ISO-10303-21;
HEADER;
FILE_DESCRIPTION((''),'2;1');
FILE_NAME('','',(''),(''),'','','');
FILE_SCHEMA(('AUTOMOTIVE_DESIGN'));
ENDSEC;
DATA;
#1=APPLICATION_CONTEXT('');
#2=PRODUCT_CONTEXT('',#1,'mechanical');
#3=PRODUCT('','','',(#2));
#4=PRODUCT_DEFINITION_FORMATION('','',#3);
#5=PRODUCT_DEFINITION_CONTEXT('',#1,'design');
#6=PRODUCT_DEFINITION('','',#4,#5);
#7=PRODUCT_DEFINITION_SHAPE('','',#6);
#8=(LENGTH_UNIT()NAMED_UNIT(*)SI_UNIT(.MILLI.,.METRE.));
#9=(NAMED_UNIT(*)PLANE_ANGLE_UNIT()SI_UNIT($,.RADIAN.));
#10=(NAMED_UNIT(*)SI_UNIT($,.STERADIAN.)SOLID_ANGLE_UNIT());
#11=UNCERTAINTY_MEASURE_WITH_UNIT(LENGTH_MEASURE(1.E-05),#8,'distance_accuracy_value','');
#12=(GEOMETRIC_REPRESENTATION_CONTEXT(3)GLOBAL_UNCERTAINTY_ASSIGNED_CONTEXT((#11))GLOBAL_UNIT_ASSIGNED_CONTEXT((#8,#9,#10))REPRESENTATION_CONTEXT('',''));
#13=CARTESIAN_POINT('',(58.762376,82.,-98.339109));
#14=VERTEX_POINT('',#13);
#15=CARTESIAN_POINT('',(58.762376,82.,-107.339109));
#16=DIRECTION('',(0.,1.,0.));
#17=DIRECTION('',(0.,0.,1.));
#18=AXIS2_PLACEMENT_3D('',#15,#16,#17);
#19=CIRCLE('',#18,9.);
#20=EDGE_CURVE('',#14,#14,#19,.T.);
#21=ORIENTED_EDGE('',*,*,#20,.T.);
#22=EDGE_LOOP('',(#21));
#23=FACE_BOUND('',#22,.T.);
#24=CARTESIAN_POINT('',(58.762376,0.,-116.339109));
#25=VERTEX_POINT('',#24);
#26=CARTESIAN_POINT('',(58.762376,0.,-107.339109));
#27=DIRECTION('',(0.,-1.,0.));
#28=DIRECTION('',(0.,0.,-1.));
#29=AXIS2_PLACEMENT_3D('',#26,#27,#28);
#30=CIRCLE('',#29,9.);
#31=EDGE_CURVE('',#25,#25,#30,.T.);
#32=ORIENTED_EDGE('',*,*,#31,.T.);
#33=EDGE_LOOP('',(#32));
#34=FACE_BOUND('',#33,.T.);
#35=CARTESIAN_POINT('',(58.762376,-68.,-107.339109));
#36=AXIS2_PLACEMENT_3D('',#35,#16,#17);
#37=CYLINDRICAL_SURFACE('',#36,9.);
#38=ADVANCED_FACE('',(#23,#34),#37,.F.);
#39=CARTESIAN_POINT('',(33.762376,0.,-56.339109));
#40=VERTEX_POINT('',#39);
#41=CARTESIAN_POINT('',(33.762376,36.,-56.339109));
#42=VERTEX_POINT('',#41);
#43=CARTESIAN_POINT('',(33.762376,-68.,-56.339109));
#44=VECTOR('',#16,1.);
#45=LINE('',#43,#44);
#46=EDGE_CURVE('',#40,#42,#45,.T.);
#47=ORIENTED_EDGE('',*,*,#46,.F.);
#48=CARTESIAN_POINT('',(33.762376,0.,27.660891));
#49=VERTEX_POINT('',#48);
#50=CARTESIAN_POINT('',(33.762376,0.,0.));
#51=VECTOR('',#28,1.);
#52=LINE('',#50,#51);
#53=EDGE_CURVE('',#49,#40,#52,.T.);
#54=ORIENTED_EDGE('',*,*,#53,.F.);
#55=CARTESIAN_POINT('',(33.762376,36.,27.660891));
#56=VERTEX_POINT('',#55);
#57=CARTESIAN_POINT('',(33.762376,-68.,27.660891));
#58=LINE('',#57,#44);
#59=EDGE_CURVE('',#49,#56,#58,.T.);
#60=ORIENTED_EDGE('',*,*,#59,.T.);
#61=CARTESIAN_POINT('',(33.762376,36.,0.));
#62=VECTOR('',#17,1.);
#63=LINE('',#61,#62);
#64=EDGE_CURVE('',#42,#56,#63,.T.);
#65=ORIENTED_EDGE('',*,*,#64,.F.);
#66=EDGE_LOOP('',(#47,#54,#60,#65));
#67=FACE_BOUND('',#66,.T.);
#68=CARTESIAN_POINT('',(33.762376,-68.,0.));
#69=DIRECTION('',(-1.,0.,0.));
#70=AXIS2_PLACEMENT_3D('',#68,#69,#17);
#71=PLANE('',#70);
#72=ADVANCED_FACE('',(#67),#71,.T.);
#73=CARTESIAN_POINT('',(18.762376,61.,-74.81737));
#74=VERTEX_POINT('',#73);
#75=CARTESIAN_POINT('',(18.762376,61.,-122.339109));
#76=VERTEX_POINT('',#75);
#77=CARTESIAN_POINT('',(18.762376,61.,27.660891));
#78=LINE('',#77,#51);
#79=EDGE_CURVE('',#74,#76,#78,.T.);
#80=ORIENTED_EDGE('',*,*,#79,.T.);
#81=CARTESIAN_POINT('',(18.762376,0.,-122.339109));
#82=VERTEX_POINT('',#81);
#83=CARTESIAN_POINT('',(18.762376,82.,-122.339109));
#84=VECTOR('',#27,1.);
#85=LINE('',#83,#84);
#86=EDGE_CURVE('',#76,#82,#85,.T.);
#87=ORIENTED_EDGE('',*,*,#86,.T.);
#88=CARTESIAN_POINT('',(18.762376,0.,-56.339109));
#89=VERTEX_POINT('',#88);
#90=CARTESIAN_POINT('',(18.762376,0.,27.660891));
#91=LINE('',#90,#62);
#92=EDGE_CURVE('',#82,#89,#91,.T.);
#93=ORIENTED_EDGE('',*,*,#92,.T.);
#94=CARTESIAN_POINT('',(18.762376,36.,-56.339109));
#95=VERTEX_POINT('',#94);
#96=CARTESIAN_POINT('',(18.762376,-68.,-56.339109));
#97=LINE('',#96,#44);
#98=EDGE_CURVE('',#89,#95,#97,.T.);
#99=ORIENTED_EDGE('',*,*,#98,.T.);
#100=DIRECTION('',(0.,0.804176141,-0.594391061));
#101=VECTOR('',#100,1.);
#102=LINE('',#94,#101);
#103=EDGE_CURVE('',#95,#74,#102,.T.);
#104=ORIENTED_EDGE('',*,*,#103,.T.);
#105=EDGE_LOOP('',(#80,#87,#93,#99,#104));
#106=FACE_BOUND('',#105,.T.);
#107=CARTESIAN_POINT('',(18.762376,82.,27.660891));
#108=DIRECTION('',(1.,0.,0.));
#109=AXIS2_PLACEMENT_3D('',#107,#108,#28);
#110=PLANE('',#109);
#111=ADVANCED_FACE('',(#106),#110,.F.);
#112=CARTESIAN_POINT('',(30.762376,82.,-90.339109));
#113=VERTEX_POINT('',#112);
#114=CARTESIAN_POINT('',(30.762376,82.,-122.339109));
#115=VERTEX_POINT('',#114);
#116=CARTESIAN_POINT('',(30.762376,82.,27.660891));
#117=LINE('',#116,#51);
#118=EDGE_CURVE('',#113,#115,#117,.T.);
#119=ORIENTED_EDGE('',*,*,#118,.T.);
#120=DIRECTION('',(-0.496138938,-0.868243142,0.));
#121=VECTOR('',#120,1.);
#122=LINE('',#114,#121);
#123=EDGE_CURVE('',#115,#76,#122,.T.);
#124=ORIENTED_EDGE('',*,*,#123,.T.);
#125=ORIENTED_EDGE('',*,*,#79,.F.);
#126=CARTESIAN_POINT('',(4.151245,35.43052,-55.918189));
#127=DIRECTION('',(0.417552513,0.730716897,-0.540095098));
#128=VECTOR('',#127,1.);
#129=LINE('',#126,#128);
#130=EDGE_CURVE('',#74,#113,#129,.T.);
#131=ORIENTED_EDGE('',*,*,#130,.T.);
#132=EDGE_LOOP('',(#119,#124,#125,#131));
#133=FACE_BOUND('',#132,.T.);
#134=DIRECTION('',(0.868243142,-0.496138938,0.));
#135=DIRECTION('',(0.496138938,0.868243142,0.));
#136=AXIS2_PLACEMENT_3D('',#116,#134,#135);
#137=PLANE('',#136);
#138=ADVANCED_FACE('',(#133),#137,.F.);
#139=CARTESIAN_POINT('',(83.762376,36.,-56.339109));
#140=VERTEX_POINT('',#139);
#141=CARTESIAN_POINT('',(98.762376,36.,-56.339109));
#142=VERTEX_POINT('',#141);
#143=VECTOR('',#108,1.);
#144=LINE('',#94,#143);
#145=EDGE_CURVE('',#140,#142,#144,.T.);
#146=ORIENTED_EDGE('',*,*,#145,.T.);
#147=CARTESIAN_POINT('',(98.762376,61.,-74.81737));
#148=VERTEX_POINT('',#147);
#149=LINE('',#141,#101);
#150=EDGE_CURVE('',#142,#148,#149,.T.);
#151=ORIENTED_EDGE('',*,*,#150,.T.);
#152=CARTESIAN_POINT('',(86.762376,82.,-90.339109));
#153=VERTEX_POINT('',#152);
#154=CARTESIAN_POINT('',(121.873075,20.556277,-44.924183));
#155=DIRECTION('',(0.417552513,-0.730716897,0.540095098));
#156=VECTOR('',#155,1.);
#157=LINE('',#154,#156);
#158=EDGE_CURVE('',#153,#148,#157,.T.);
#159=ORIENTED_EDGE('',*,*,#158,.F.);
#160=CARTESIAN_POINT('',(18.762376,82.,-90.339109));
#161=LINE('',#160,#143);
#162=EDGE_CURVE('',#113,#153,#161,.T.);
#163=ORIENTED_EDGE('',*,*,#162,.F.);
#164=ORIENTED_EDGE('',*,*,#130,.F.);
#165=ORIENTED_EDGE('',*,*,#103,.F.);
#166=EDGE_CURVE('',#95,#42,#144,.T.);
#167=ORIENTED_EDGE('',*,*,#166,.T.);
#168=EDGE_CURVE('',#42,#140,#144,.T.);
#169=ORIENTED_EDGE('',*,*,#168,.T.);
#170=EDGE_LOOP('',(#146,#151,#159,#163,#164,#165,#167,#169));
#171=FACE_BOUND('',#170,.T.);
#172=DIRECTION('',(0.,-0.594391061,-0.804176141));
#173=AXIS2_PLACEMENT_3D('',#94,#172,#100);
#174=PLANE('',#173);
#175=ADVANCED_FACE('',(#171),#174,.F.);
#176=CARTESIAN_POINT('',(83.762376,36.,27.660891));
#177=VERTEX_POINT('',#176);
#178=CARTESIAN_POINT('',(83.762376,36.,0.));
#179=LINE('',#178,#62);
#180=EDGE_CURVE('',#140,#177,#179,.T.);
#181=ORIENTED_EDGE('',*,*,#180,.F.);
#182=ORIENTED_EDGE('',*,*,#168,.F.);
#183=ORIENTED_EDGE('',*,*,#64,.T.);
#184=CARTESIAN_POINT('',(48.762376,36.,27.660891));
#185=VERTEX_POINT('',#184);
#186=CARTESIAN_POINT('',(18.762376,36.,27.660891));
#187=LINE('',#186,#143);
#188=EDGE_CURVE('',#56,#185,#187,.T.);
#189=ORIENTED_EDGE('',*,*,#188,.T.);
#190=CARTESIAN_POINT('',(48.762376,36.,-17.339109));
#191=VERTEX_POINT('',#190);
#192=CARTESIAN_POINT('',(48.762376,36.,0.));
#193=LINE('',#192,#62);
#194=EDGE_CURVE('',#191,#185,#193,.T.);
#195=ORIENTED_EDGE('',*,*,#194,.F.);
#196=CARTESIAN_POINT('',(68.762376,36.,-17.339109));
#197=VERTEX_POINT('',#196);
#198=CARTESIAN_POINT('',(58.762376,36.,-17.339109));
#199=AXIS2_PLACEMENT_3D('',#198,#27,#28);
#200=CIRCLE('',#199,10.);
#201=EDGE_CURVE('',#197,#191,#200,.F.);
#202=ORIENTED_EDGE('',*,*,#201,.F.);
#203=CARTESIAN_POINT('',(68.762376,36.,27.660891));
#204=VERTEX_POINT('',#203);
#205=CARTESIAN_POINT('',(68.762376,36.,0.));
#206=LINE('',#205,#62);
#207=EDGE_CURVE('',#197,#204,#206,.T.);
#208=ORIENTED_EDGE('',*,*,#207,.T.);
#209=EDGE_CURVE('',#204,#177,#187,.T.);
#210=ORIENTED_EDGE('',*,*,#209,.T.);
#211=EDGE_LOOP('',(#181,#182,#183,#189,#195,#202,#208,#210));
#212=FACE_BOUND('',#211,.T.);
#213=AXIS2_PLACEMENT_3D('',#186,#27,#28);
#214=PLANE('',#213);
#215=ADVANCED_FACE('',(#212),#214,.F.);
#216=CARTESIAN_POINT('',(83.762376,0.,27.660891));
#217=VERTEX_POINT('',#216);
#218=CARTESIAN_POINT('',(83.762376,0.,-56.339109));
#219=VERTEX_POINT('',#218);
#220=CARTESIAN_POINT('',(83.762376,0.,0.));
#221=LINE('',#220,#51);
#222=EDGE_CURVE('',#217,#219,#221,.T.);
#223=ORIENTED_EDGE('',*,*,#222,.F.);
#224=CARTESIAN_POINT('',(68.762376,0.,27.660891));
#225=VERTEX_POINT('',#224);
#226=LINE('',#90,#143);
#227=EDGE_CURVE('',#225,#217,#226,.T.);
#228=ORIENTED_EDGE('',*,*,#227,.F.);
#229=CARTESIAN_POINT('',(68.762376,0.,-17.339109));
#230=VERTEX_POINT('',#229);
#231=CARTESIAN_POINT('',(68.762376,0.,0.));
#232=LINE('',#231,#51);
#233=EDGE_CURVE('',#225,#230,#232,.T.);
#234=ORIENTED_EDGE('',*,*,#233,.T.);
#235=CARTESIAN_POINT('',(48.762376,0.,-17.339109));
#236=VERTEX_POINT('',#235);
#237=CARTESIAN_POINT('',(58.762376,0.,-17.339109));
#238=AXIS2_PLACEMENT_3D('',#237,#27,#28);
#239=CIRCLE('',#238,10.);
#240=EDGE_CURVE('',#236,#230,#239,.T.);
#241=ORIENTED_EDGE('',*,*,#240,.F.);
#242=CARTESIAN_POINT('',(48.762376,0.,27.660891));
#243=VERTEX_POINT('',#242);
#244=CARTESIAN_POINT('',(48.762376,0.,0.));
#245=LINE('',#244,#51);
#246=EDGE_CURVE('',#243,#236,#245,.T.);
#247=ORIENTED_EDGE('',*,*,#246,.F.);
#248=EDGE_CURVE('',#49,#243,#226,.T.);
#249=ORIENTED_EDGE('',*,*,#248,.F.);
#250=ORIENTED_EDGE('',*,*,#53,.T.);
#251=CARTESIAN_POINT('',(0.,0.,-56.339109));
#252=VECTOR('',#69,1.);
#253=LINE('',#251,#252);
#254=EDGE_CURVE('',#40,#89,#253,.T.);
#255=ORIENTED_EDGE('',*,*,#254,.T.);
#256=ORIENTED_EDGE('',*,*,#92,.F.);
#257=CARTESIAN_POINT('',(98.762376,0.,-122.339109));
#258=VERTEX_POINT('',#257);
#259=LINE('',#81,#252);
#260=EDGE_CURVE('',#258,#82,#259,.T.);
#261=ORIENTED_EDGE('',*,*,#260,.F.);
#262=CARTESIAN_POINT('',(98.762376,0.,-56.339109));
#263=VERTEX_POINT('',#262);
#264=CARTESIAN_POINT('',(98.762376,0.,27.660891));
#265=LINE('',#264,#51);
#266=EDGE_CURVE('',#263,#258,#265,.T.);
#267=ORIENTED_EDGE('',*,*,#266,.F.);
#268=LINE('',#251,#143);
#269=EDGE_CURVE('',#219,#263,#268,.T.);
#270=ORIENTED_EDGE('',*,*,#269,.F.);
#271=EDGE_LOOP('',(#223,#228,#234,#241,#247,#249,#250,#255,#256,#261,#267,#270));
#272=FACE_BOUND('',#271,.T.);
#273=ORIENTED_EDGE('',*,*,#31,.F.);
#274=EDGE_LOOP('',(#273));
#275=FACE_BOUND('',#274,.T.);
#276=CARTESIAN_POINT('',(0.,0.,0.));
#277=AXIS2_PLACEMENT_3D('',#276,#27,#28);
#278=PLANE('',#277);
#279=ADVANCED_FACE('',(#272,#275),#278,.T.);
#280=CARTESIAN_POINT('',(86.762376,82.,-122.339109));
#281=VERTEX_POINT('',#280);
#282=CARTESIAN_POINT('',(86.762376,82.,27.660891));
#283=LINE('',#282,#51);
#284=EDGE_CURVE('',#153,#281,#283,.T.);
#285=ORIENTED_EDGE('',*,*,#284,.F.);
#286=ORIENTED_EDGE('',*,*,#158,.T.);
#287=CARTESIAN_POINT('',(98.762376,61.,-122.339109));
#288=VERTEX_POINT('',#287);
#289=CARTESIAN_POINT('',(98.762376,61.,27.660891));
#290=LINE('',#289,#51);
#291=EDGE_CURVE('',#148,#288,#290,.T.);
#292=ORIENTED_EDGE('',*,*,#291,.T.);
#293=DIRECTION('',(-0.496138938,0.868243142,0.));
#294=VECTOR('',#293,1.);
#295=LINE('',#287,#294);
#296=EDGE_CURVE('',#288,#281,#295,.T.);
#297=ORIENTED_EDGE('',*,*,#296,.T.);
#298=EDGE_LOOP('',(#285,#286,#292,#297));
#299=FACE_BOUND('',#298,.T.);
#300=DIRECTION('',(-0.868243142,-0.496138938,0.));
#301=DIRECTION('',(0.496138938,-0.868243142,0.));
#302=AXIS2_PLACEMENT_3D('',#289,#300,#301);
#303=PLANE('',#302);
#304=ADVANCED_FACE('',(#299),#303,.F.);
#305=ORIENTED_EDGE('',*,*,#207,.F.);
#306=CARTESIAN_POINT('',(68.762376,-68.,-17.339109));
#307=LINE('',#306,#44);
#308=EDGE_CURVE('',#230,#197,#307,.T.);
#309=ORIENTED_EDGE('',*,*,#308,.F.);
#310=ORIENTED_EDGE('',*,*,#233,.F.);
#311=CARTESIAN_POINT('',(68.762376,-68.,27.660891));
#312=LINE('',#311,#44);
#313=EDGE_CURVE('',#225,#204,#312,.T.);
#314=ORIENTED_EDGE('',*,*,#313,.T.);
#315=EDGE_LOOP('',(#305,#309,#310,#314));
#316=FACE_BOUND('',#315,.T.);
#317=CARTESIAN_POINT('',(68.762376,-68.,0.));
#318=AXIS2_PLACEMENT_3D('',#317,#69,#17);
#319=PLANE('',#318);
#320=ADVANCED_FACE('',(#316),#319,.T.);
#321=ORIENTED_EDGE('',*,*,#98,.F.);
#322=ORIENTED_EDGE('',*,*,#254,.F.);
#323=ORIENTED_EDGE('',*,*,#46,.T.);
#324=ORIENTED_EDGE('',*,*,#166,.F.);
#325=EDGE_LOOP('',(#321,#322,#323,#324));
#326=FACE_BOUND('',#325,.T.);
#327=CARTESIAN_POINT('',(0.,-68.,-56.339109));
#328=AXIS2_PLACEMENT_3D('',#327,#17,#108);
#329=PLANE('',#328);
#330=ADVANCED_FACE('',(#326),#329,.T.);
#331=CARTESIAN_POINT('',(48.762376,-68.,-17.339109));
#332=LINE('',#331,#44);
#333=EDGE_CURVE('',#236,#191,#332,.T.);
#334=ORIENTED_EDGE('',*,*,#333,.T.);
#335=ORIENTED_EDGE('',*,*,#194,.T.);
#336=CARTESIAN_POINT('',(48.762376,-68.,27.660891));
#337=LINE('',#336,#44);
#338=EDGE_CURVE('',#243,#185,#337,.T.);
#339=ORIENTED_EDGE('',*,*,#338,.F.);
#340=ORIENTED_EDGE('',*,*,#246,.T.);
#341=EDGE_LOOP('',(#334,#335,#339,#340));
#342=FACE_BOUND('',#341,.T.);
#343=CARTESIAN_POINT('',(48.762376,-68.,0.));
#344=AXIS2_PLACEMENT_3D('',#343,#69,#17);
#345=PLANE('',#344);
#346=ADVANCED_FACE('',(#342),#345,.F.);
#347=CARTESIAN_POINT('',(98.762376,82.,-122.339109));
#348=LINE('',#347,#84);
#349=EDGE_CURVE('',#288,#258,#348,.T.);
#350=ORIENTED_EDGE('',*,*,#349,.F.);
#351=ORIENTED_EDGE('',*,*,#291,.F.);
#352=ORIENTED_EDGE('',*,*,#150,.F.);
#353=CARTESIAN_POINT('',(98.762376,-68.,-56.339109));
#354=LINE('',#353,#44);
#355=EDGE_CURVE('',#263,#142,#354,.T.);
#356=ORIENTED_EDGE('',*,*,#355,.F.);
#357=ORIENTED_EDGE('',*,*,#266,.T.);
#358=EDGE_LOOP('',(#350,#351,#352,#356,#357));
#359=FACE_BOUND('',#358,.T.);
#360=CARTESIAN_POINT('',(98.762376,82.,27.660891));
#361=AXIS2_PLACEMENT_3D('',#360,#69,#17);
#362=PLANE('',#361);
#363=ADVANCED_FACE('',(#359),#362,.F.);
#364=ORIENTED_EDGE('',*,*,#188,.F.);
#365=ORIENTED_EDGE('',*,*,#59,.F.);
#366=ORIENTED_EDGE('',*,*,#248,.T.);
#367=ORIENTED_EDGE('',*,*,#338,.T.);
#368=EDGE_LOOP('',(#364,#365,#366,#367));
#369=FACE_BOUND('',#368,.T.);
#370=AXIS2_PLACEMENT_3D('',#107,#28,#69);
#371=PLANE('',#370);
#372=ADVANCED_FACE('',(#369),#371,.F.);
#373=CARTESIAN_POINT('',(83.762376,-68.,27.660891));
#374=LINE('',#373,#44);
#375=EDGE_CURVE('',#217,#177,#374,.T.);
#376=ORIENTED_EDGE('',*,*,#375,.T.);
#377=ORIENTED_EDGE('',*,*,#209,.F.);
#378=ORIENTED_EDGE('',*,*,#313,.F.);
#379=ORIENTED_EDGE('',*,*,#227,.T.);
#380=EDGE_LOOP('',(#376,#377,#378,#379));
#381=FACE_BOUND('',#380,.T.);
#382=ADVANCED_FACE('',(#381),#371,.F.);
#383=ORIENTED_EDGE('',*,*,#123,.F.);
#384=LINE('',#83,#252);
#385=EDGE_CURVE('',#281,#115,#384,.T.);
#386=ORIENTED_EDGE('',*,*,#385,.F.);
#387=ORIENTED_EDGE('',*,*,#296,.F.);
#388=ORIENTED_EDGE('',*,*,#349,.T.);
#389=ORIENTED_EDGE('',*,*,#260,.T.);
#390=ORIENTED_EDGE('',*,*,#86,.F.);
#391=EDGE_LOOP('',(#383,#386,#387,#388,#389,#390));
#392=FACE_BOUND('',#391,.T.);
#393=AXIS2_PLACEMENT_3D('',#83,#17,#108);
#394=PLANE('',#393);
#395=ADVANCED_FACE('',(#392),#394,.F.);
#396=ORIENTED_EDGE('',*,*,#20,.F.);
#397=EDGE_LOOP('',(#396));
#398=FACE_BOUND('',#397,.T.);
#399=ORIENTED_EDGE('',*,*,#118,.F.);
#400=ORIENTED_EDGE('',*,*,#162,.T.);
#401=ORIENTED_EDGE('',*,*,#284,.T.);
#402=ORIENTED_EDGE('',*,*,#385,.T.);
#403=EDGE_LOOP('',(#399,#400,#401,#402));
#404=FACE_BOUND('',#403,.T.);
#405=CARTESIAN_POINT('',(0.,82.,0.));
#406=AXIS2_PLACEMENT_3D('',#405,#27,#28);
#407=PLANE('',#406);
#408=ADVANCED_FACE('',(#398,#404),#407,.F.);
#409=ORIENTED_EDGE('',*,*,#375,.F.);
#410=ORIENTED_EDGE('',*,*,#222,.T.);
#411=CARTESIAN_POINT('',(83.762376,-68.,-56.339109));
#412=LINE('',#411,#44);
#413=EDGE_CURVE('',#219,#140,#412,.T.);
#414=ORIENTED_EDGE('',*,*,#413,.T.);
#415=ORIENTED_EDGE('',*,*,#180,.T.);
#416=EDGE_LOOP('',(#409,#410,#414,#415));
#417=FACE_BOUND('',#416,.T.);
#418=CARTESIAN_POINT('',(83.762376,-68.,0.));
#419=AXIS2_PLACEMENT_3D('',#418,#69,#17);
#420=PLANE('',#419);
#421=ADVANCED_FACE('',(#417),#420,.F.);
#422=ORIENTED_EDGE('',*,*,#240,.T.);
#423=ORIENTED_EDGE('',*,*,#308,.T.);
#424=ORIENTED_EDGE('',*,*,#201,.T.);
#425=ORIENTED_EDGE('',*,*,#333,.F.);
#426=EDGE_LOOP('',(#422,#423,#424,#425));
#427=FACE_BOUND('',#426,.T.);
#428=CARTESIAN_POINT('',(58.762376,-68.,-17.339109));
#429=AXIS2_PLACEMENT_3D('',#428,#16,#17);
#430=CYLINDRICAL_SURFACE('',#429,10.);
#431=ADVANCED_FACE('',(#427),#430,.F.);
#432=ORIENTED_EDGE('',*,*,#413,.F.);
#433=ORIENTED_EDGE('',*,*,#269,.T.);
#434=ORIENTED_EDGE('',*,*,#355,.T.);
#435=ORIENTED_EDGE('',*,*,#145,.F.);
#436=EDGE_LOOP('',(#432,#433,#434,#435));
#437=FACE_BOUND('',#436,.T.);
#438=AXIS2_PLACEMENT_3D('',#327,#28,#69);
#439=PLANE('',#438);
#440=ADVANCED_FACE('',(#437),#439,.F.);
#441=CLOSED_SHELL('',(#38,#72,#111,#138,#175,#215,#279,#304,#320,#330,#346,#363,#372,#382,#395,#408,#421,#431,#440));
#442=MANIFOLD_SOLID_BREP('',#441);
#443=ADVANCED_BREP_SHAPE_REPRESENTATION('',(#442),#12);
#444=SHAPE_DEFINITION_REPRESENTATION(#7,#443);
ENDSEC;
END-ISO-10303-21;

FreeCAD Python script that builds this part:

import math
import FreeCAD as App
import Part
import Sketcher
from FreeCAD import Vector


def add_polygon(sketch, points):
    """Adds a closed chain of lines whose ends are joined by coincident constraints."""
    first, n = sketch.GeometryCount, len(points)
    for a, b in zip(points, points[1:] + points[:1]):
        sketch.addGeometry(Part.LineSegment(App.Vector(*a, 0), App.Vector(*b, 0)), False)
    for i in range(n):
        sketch.addConstraint(Sketcher.Constraint("Coincident", first + i, 2, first + (i + 1) % n, 1))

doc = App.newDocument("Part")
body = doc.addObject("PartDesign::Body", "Body")

sketch1 = body.newObject("Sketcher::SketchObject", "Sketch")
sketch1.AttachmentSupport = (doc.getObject("XZ_Plane"), [""])
sketch1.MapMode = "FlatFace"
add_polygon(sketch1, [(19, -122), (19, 28), (99, 28), (99, -122)])
sketch1.addConstraint([
    Sketcher.Constraint("Vertical", 0),
    Sketcher.Constraint("Horizontal", 1),
    Sketcher.Constraint("Vertical", 2),
    Sketcher.Constraint("Horizontal", 3),
    Sketcher.Constraint("DistanceX", 1, 1, 1, 2, 80.0),
    Sketcher.Constraint("DistanceY", 0, 1, 0, 2, 150.0),
    Sketcher.Constraint("DistanceY", -1, 1, 0, 2, 27.660891),
    Sketcher.Constraint("DistanceX", -1, 1, 0, 2, 18.762376),
])
pad1 = body.newObject("PartDesign::Pad", "Pad")
pad1.Profile = sketch1
pad1.Length = 82
pad1.Reversed = True

sketch2 = body.newObject("Sketcher::SketchObject", "Sketch001")
sketch2.AttachmentSupport = (doc.getObject("XY_Plane"), [""])
sketch2.MapMode = "FlatFace"
sketch2.AttachmentOffset = App.Placement(Vector(0, 0, -122.339109), App.Rotation())
add_polygon(sketch2, [(99, 82), (99, 61), (87, 82)])
add_polygon(sketch2, [(19, 82), (31, 82), (19, 61)])
sketch2.addConstraint([
    Sketcher.Constraint("Vertical", 0),
    Sketcher.Constraint("Horizontal", 2),
    Sketcher.Constraint("Horizontal", 3),
    Sketcher.Constraint("Vertical", 5),
    Sketcher.Constraint("Horizontal", 2, 2, 3, 2),
    Sketcher.Constraint("Horizontal", 0, 2, 4, 2),
    Sketcher.Constraint("Equal", 2, 3),
    Sketcher.Constraint("DistanceX", 2, 1, 2, 2, 12.0),
    Sketcher.Constraint("DistanceY", 0, 2, 0, 1, 21.0),
    Sketcher.Constraint("DistanceY", -1, 1, 0, 2, 61.0),
    Sketcher.Constraint("DistanceX", 3, 2, 1, 2, 56.0),
    Sketcher.Constraint("DistanceX", -1, 1, 0, 2, 98.762376),
])
pocket1 = body.newObject("PartDesign::Pocket", "Pocket")
pocket1.Profile = sketch2
pocket1.Length = 150
pocket1.Reversed = True

sketch3 = body.newObject("Sketcher::SketchObject", "Sketch002")
sketch3.AttachmentSupport = (doc.getObject("XZ_Plane"), [""])
sketch3.MapMode = "FlatFace"
sketch3.AttachmentOffset = App.Placement(Vector(0, 0, -82), App.Rotation())
sketch3.addGeometry(Part.Circle(Vector(59, -107, 0), Vector(0, 0, 1), 9), False)
sketch3.addGeometry(Part.ArcOfCircle(Part.Circle(Vector(59, -17, 0), Vector(0, 0, 1), 10), math.radians(180), math.radians(360)), False)
sketch3.addGeometry(Part.LineSegment(Vector(49, -17, 0), Vector(49, 28, 0)), False)
sketch3.addGeometry(Part.LineSegment(Vector(49, 28, 0), Vector(69, 28, 0)), False)
sketch3.addGeometry(Part.LineSegment(Vector(69, 28, 0), Vector(69, -17, 0)), False)
add_polygon(sketch3, [(19, -56), (19, 28), (34, 28), (34, -56)])
add_polygon(sketch3, [(99, 28), (99, -56), (84, -56), (84, 28)])
sketch3.addConstraint([
    Sketcher.Constraint("Tangent", 1, 1, 2, 1),
    Sketcher.Constraint("Coincident", 2, 2, 3, 1),
    Sketcher.Constraint("Coincident", 3, 2, 4, 1),
    Sketcher.Constraint("Tangent", 4, 2, 1, 2),
    Sketcher.Constraint("Vertical", 2),
    Sketcher.Constraint("Horizontal", 3),
    Sketcher.Constraint("Vertical", 4),
    Sketcher.Constraint("Vertical", 5),
    Sketcher.Constraint("Horizontal", 6),
    Sketcher.Constraint("Vertical", 7),
    Sketcher.Constraint("Horizontal", 8),
    Sketcher.Constraint("Vertical", 9),
    Sketcher.Constraint("Horizontal", 10),
    Sketcher.Constraint("Vertical", 11),
    Sketcher.Constraint("Horizontal", 12),
    Sketcher.Constraint("Horizontal", 3, 2, 5, 2),
    Sketcher.Constraint("Horizontal", 8, 2, 9, 2),
    Sketcher.Constraint("Horizontal", 6, 2, 11, 2),
    Sketcher.Constraint("Vertical", 0, 3, 1, 3),
    Sketcher.Constraint("Equal", 8, 10),
    Sketcher.Constraint("Diameter", 0, 18.0),
    Sketcher.Constraint("Radius", 1, 10.0),
    Sketcher.Constraint("DistanceX", 6, 1, 6, 2, 15.0),
    Sketcher.Constraint("DistanceY", 2, 1, 2, 2, 45.0),
    Sketcher.Constraint("DistanceY", 5, 1, 5, 2, 84.0),
    Sketcher.Constraint("DistanceY", 0, 3, 1, 3, 90.0),
    Sketcher.Constraint("DistanceX", 5, 2, 2, 2, 30.0),
    Sketcher.Constraint("DistanceX", 4, 2, 9, 2, 30.0),
    Sketcher.Constraint("DistanceY", 0, 3, -1, 1, 107.339109),
    Sketcher.Constraint("DistanceX", -1, 1, 0, 3, 58.762376),
])
pocket2 = body.newObject("PartDesign::Pocket", "Pocket001")
pocket2.Profile = sketch3
pocket2.Length = 150
pocket2.Reversed = True

sketch4 = body.newObject("Sketcher::SketchObject", "Sketch003")
sketch4.AttachmentSupport = (doc.getObject("YZ_Plane"), [""])
sketch4.MapMode = "FlatFace"
sketch4.AttachmentOffset = App.Placement(Vector(0, 0, 98.762376), App.Rotation())
add_polygon(sketch4, [(36, 28), (36, -56), (82, -90), (82, 28)])
sketch4.addConstraint([
    Sketcher.Constraint("Vertical", 0),
    Sketcher.Constraint("Vertical", 2),
    Sketcher.Constraint("Horizontal", 3),
    Sketcher.Constraint("DistanceX", 3, 2, 3, 1, 46.0),
    Sketcher.Constraint("DistanceY", 0, 2, 0, 1, 84.0),
    Sketcher.Constraint("DistanceY", 2, 1, 2, 2, 118.0),
    Sketcher.Constraint("DistanceX", -1, 1, 0, 2, 36.0),
    Sketcher.Constraint("DistanceY", 0, 2, -1, 1, 56.339109),
])
pocket3 = body.newObject("PartDesign::Pocket", "Pocket002")
pocket3.Profile = sketch4
pocket3.Length = 80

doc.recompute()
